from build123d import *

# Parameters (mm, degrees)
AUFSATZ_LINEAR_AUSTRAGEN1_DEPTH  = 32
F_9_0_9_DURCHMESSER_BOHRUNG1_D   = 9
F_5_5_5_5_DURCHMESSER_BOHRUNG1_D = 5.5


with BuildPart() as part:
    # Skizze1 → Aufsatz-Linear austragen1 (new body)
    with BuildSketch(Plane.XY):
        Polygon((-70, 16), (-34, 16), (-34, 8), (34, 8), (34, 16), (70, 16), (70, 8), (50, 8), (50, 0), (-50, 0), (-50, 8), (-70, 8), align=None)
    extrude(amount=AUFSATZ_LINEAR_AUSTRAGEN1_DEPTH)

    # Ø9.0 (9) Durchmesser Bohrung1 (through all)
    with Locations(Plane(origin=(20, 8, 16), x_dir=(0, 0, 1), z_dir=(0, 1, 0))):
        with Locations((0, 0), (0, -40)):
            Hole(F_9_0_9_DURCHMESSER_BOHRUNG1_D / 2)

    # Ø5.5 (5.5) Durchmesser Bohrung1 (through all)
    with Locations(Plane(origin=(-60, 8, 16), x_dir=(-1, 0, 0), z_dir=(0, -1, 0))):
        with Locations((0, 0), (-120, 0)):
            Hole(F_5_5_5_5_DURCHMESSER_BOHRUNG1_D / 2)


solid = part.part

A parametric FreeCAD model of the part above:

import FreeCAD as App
import Part
import Sketcher

V = App.Vector


def add_polygon(sketch, points):
    """Adds a closed chain of lines whose ends are joined by coincident constraints."""
    first, n = sketch.GeometryCount, len(points)
    for a, b in zip(points, points[1:] + points[:1]):
        sketch.addGeometry(Part.LineSegment(App.Vector(*a, 0), App.Vector(*b, 0)), False)
    for i in range(n):
        sketch.addConstraint(Sketcher.Constraint("Coincident", first + i, 2, first + (i + 1) % n, 1))

doc = App.newDocument("Part")
body = doc.addObject("PartDesign::Body", "Body")

sketch1 = body.newObject("Sketcher::SketchObject", "Sketch")
sketch1.AttachmentSupport = (doc.getObject("XY_Plane"), [""])
sketch1.MapMode = "FlatFace"
add_polygon(sketch1, [(-34, 16), (-70, 16), (-70, 8), (-50, 8), (-50, 0), (50, 0), (50, 8), (70, 8), (70, 16), (34, 16), (34, 8), (-34, 8)])
sketch1.addConstraint([
    Sketcher.Constraint("Horizontal", 0),
    Sketcher.Constraint("Vertical", 1),
    Sketcher.Constraint("Horizontal", 2),
    Sketcher.Constraint("Vertical", 3),
    Sketcher.Constraint("Horizontal", 4),
    Sketcher.Constraint("Vertical", 5),
    Sketcher.Constraint("Horizontal", 6),
    Sketcher.Constraint("Vertical", 7),
    Sketcher.Constraint("Horizontal", 8),
    Sketcher.Constraint("Vertical", 9),
    Sketcher.Constraint("Horizontal", 10),
    Sketcher.Constraint("Vertical", 11),
    Sketcher.Constraint("Symmetric", 3, 2, 4, 2, -1, 1),
    Sketcher.Constraint("Symmetric", 1, 2, 6, 2, -2),
    Sketcher.Constraint("Symmetric", 8, 2, 11, 2, -2),
    Sketcher.Constraint("Horizontal", 6, 2, 9, 2),
    Sketcher.Constraint("Equal", 1, 3),
    Sketcher.Constraint("DistanceX", 0, 2, 0, 1, 36.0),
    Sketcher.Constraint("DistanceX", 2, 1, 2, 2, 20.0),
    Sketcher.Constraint("DistanceX", 4, 1, 4, 2, 100.0),
    Sketcher.Constraint("DistanceY", 1, 2, 1, 1, 8.0),
])
pad1 = body.newObject("PartDesign::Pad", "Pad")
pad1.Profile = sketch1
pad1.Length = 32

sketch2 = body.newObject("Sketcher::SketchObject", "Sketch001")
sketch2.AttachmentSupport = (doc.getObject("XZ_Plane"), [""])
sketch2.MapMode = "FlatFace"
sketch2.AttachmentOffset = App.Placement(V(0, 0, -8), App.Rotation())
sketch2.addGeometry([
    Part.Circle(V(20, 16, 0), V(0, 0, 1), 4.5),
    Part.Circle(V(-20, 16, 0), V(0, 0, 1), 4.5),
], False)
sketch2.addConstraint([
    Sketcher.Constraint("Equal", 0, 1),
    Sketcher.Constraint("Symmetric", 0, 3, 1, 3, -2),
    Sketcher.Constraint("Diameter", 0, 9.0),
    Sketcher.Constraint("DistanceX", -1, 1, 0, 3, 20.0),
    Sketcher.Constraint("DistanceY", -1, 1, 0, 3, 16.0),
])
doc.recompute()
hole = body.newObject("PartDesign::Hole", "Hole")
hole.Profile = sketch2
hole.ThreadType = "None"
hole.Diameter = 9
hole.DepthType = "ThroughAll"
hole.Reversed = True

sketch3 = body.newObject("Sketcher::SketchObject", "Sketch002")
sketch3.AttachmentSupport = (doc.getObject("XZ_Plane"), [""])
sketch3.MapMode = "FlatFace"
sketch3.AttachmentOffset = App.Placement(V(0, 0, -8), App.Rotation())
sketch3.addGeometry([
    Part.Circle(V(-60, 16, 0), V(0, 0, 1), 2.75),
    Part.Circle(V(60, 16, 0), V(0, 0, 1), 2.75),
], False)
sketch3.addConstraint([
    Sketcher.Constraint("Equal", 0, 1),
    Sketcher.Constraint("Symmetric", 0, 3, 1, 3, -2),
    Sketcher.Constraint("Diameter", 0, 5.5),
    Sketcher.Constraint("DistanceX", 0, 3, -1, 1, 60.0),
    Sketcher.Constraint("DistanceY", -1, 1, 0, 3, 16.0),
])
doc.recompute()
hole2 = body.newObject("PartDesign::Hole", "Hole001")
hole2.Profile = sketch3
hole2.ThreadType = "None"
hole2.Diameter = 5.5
hole2.DepthType = "ThroughAll"

doc.recompute()
